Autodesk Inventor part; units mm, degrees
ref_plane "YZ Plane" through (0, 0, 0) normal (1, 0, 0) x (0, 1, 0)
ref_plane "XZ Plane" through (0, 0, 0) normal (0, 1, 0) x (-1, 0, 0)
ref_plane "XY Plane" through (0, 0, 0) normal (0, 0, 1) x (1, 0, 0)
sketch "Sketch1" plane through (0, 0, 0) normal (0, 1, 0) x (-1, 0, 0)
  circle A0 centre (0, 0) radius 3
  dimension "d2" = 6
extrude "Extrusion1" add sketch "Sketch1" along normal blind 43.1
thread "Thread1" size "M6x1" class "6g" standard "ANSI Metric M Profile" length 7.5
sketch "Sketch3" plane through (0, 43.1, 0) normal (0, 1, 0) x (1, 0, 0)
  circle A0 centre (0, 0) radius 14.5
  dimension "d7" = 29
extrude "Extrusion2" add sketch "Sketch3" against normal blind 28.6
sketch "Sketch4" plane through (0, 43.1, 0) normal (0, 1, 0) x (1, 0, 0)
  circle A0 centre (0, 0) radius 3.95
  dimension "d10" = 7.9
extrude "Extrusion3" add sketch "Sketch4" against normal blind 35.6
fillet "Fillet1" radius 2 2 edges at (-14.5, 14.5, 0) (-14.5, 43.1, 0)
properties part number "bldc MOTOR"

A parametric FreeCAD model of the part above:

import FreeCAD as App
import Part
import Sketcher
from FreeCAD import Vector


def edges_at(feature, points):
    """Names of the edges that pass closest to the given points."""
    edges = feature.Shape.Edges
    near = lambda p: min(range(len(edges)), key=lambda i: edges[i].distToShape(Part.Vertex(*p))[0])
    return sorted({f"Edge{near(p) + 1}" for p in points})

doc = App.newDocument("Part")
params = doc.addObject("Spreadsheet::Sheet", "Params")
for row, (alias, value) in enumerate([
    ("sketch1_diameter", "6 mm"),
    ("pad1_length", "43.1 mm"),
    ("sketch2_diameter", "29 mm"),
    ("pad2_length", "28.6 mm"),
    ("sketch3_diameter", "7.9 mm"),
    ("pad3_length", "35.6 mm"),
    ("fillet_radius", "2 mm"),
], start=1):
    params.set(f"A{row}", alias)
    params.set(f"B{row}", "=" + value)
    params.setAlias(f"B{row}", alias)

body = doc.addObject("PartDesign::Body", "Body")

# Sketch on XZ plane
sketch1 = body.newObject("Sketcher::SketchObject", "Sketch")
sketch1.AttachmentSupport = (doc.getObject("XZ_Plane"), [""])
sketch1.MapMode = "FlatFace"
sketch1.addGeometry(Part.Circle(Vector(0, 0, 0), Vector(0, 0, 1), 3), False)
sketch1.addConstraint(Sketcher.Constraint("Coincident", 0, 3, -1, 1))
sketch1.addConstraint(Sketcher.Constraint("Diameter", 0, 6.0))
sketch1.setExpression("Constraints[1]", "Params.sketch1_diameter")
pad1 = body.newObject("PartDesign::Pad", "Pad")
pad1.Profile = sketch1
pad1.setExpression("Length", "Params.pad1_length")
pad1.Reversed = True

# Sketch on XZ plane
sketch2 = body.newObject("Sketcher::SketchObject", "Sketch001")
sketch2.AttachmentSupport = (doc.getObject("XZ_Plane"), [""])
sketch2.MapMode = "FlatFace"
sketch2.AttachmentOffset = App.Placement(Vector(0, 0, -43.1), App.Rotation())
sketch2.addGeometry(Part.Circle(Vector(0, 0, 0), Vector(0, 0, 1), 14), False)
sketch2.addConstraint(Sketcher.Constraint("Coincident", 0, 3, -1, 1))
sketch2.addConstraint(Sketcher.Constraint("Diameter", 0, 29.0))
sketch2.setExpression("Constraints[1]", "Params.sketch2_diameter")
pad2 = body.newObject("PartDesign::Pad", "Pad001")
pad2.Profile = sketch2
pad2.setExpression("Length", "Params.pad2_length")

# Sketch on XZ plane
sketch3 = body.newObject("Sketcher::SketchObject", "Sketch002")
sketch3.AttachmentSupport = (doc.getObject("XZ_Plane"), [""])
sketch3.MapMode = "FlatFace"
sketch3.AttachmentOffset = App.Placement(Vector(0, 0, -43.1), App.Rotation())
sketch3.addGeometry(Part.Circle(Vector(0, 0, 0), Vector(0, 0, 1), 4), False)
sketch3.addConstraint(Sketcher.Constraint("Coincident", 0, 3, -1, 1))
sketch3.addConstraint(Sketcher.Constraint("Diameter", 0, 7.9))
sketch3.setExpression("Constraints[1]", "Params.sketch3_diameter")
pad3 = body.newObject("PartDesign::Pad", "Pad002")
pad3.Profile = sketch3
pad3.setExpression("Length", "Params.pad3_length")
doc.recompute()

fillet = body.newObject("PartDesign::Fillet", "Fillet")
fillet.Base = (pad3, edges_at(pad3, [(-14.5, 14.5, 0), (-14.5, 43.1, 0)]))
fillet.setExpression("Radius", "Params.fillet_radius")

doc.recompute()
